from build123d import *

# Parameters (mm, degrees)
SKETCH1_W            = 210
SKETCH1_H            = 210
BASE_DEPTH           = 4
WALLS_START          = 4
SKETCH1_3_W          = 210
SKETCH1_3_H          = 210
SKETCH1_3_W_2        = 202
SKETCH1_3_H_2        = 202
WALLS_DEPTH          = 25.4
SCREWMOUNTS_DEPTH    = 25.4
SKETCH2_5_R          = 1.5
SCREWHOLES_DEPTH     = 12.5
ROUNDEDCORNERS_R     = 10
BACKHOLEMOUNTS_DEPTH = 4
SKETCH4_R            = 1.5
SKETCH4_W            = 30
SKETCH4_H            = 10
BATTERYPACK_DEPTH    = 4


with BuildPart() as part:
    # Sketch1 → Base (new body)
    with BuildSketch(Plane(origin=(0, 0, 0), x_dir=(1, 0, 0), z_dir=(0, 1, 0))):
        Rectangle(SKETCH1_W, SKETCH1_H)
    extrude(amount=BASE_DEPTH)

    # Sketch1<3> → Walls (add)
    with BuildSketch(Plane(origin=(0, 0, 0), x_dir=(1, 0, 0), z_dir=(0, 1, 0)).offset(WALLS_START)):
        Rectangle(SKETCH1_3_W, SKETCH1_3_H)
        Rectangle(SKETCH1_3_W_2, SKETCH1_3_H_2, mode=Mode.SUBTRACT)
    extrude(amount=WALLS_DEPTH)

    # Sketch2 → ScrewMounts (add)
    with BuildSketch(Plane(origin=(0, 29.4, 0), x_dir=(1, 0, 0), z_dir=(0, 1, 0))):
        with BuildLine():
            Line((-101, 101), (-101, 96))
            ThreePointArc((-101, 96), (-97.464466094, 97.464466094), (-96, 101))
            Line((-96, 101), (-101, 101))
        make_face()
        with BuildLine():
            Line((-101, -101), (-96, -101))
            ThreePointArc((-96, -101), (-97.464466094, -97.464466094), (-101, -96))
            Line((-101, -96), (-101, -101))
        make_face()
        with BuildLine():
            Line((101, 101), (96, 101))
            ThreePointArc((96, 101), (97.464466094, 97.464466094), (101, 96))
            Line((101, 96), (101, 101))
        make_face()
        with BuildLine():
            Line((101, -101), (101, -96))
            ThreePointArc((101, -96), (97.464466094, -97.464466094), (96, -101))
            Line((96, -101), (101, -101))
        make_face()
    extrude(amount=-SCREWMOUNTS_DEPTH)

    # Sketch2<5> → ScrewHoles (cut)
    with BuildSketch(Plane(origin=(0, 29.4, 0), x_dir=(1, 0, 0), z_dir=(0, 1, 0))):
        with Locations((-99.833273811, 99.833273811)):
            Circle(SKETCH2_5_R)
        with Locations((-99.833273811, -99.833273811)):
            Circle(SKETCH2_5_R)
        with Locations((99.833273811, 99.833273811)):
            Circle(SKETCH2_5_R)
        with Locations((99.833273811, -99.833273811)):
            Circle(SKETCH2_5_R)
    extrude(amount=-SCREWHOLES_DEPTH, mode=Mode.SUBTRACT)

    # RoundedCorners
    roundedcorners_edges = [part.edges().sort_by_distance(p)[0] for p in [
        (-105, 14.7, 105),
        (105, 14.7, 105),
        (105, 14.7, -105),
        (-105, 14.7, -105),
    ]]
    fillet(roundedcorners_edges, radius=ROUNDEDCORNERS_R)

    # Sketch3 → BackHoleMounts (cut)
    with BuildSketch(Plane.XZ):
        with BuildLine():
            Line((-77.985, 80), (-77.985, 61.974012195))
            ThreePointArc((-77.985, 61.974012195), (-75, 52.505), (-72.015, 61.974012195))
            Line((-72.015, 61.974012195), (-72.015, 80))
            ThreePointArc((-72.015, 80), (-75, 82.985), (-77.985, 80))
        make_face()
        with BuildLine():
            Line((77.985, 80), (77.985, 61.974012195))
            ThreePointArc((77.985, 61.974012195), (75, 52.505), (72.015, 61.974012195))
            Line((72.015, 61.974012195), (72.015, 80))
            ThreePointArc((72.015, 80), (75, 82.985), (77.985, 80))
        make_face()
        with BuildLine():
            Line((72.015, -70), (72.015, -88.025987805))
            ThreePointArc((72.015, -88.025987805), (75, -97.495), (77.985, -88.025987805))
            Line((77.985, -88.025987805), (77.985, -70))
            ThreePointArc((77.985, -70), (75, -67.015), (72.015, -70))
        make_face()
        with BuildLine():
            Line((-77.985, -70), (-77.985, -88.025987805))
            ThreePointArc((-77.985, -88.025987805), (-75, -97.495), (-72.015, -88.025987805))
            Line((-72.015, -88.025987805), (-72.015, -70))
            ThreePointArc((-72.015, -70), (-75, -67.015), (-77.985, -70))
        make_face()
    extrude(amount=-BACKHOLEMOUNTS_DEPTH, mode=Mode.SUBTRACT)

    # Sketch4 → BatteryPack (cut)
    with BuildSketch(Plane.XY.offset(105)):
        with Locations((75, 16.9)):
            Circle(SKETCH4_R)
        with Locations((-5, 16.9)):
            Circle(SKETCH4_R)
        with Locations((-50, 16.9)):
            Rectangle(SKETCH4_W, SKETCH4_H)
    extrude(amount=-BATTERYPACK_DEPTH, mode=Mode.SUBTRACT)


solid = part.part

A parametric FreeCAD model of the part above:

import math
import FreeCAD as App
import Part
import Sketcher

V = App.Vector
Q = App.Units.Quantity


def edges_at(feature, points):
    """Names of the edges that pass closest to the given points."""
    edges = feature.Shape.Edges
    near = lambda p: min(range(len(edges)), key=lambda i: edges[i].distToShape(Part.Vertex(*p))[0])
    return sorted({f"Edge{near(p) + 1}" for p in points})

doc = App.newDocument("Part")
body = doc.addObject("PartDesign::Body", "Body")

# Sketch on XZ plane
sketch1 = doc.addObject("Sketcher::SketchObject", "Sketch")
body.addObject(sketch1)
sketch1.AttachmentSupport = (doc.XZ_Plane, [""])
sketch1.MapMode = "FlatFace"
sketch1.addGeometry(Part.LineSegment(V(-105, -105, 0), V(-105, 105, 0)), False)
sketch1.addGeometry(Part.LineSegment(V(-105, 105, 0), V(105, 105, 0)), False)
sketch1.addGeometry(Part.LineSegment(V(105, 105, 0), V(105, -105, 0)), False)
sketch1.addGeometry(Part.LineSegment(V(105, -105, 0), V(-105, -105, 0)), False)
sketch1.addConstraint(Sketcher.Constraint("Coincident", 0, 2, 1, 1))
sketch1.addConstraint(Sketcher.Constraint("Coincident", 1, 2, 2, 1))
sketch1.addConstraint(Sketcher.Constraint("Coincident", 2, 2, 3, 1))
sketch1.addConstraint(Sketcher.Constraint("Coincident", 3, 2, 0, 1))
sketch1.addConstraint(Sketcher.Constraint("Vertical", 0))
sketch1.addConstraint(Sketcher.Constraint("Horizontal", 1))
sketch1.addConstraint(Sketcher.Constraint("Vertical", 2))
sketch1.addConstraint(Sketcher.Constraint("Horizontal", 3))
sketch1.addConstraint(Sketcher.Constraint("Symmetric", 0, 2, 2, 2, -1, 1))
sketch1.addConstraint(Sketcher.Constraint("Equal", 3, 0))
sketch1.addConstraint(Sketcher.Constraint("DistanceX", 1, 1, 1, 2, Q("210 mm")))
pad1 = doc.addObject("PartDesign::Pad", "Pad")
body.addObject(pad1)
pad1.Profile = sketch1
pad1.Length = 4
pad1.Reversed = True

# Sketch on XZ plane
sketch2 = doc.addObject("Sketcher::SketchObject", "Sketch001")
body.addObject(sketch2)
sketch2.AttachmentSupport = (doc.XZ_Plane, [""])
sketch2.MapMode = "FlatFace"
sketch2.AttachmentOffset = App.Placement(V(0, 0, -4), App.Rotation())
sketch2.addGeometry(Part.LineSegment(V(-105, -105, 0), V(-105, 105, 0)), False)
sketch2.addGeometry(Part.LineSegment(V(-105, 105, 0), V(105, 105, 0)), False)
sketch2.addGeometry(Part.LineSegment(V(105, 105, 0), V(105, -105, 0)), False)
sketch2.addGeometry(Part.LineSegment(V(105, -105, 0), V(-105, -105, 0)), False)
sketch2.addGeometry(Part.LineSegment(V(101, 101, 0), V(-101, 101, 0)), False)
sketch2.addGeometry(Part.LineSegment(V(-101, 101, 0), V(-101, -101, 0)), False)
sketch2.addGeometry(Part.LineSegment(V(-101, -101, 0), V(101, -101, 0)), False)
sketch2.addGeometry(Part.LineSegment(V(101, -101, 0), V(101, 101, 0)), False)
sketch2.addConstraint(Sketcher.Constraint("Coincident", 0, 2, 1, 1))
sketch2.addConstraint(Sketcher.Constraint("Coincident", 1, 2, 2, 1))
sketch2.addConstraint(Sketcher.Constraint("Coincident", 2, 2, 3, 1))
sketch2.addConstraint(Sketcher.Constraint("Coincident", 3, 2, 0, 1))
sketch2.addConstraint(Sketcher.Constraint("Coincident", 4, 2, 5, 1))
sketch2.addConstraint(Sketcher.Constraint("Coincident", 5, 2, 6, 1))
sketch2.addConstraint(Sketcher.Constraint("Coincident", 6, 2, 7, 1))
sketch2.addConstraint(Sketcher.Constraint("Coincident", 7, 2, 4, 1))
sketch2.addConstraint(Sketcher.Constraint("Vertical", 0))
sketch2.addConstraint(Sketcher.Constraint("Horizontal", 1))
sketch2.addConstraint(Sketcher.Constraint("Vertical", 2))
sketch2.addConstraint(Sketcher.Constraint("Horizontal", 3))
sketch2.addConstraint(Sketcher.Constraint("Horizontal", 4))
sketch2.addConstraint(Sketcher.Constraint("Vertical", 5))
sketch2.addConstraint(Sketcher.Constraint("Horizontal", 6))
sketch2.addConstraint(Sketcher.Constraint("Vertical", 7))
sketch2.addConstraint(Sketcher.Constraint("Symmetric", 0, 2, 2, 2, -1, 1))
sketch2.addConstraint(Sketcher.Constraint("Symmetric", 4, 2, 6, 2, -1, 1))
sketch2.addConstraint(Sketcher.Constraint("Equal", 3, 0))
sketch2.addConstraint(Sketcher.Constraint("Equal", 6, 5))
sketch2.addConstraint(Sketcher.Constraint("DistanceX", 1, 1, 1, 2, Q("210 mm")))
sketch2.addConstraint(Sketcher.Constraint("DistanceX", 4, 2, 4, 1, Q("202 mm")))
pad2 = doc.addObject("PartDesign::Pad", "Pad001")
body.addObject(pad2)
pad2.Profile = sketch2
pad2.Length = 25.4
pad2.Reversed = True

# Sketch on XZ plane
sketch3 = doc.addObject("Sketcher::SketchObject", "Sketch002")
body.addObject(sketch3)
sketch3.AttachmentSupport = (doc.XZ_Plane, [""])
sketch3.MapMode = "FlatFace"
sketch3.AttachmentOffset = App.Placement(V(0, 0, -29.4), App.Rotation())
sketch3.addGeometry(Part.LineSegment(V(-101, -101, 0), V(-101, -96, 0)), False)
sketch3.addGeometry(Part.ArcOfCircle(Part.Circle(V(-101, -101, 0), V(0, 0, 1), 5), math.radians(0), math.radians(90)), False)
sketch3.addGeometry(Part.LineSegment(V(-96, -101, 0), V(-101, -101, 0)), False)
sketch3.addGeometry(Part.LineSegment(V(-101, 101, 0), V(-96, 101, 0)), False)
sketch3.addGeometry(Part.ArcOfCircle(Part.Circle(V(-101, 101, 0), V(0, 0, 1), 5), math.radians(-90), math.radians(0)), False)
sketch3.addGeometry(Part.LineSegment(V(-101, 96, 0), V(-101, 101, 0)), False)
sketch3.addGeometry(Part.LineSegment(V(101, -101, 0), V(96, -101, 0)), False)
sketch3.addGeometry(Part.ArcOfCircle(Part.Circle(V(101, -101, 0), V(0, 0, 1), 5), math.radians(90), math.radians(180)), False)
sketch3.addGeometry(Part.LineSegment(V(101, -96, 0), V(101, -101, 0)), False)
sketch3.addGeometry(Part.LineSegment(V(101, 101, 0), V(101, 96, 0)), False)
sketch3.addGeometry(Part.ArcOfCircle(Part.Circle(V(101, 101, 0), V(0, 0, 1), 5), math.radians(180), math.radians(270)), False)
sketch3.addGeometry(Part.LineSegment(V(96, 101, 0), V(101, 101, 0)), False)
sketch3.addConstraint(Sketcher.Constraint("Coincident", 0, 2, 1, 2))
sketch3.addConstraint(Sketcher.Constraint("Coincident", 1, 1, 2, 1))
sketch3.addConstraint(Sketcher.Constraint("Coincident", 2, 2, 0, 1))
sketch3.addConstraint(Sketcher.Constraint("Coincident", 3, 2, 4, 2))
sketch3.addConstraint(Sketcher.Constraint("Coincident", 4, 1, 5, 1))
sketch3.addConstraint(Sketcher.Constraint("Coincident", 5, 2, 3, 1))
sketch3.addConstraint(Sketcher.Constraint("Coincident", 6, 2, 7, 2))
sketch3.addConstraint(Sketcher.Constraint("Coincident", 7, 1, 8, 1))
sketch3.addConstraint(Sketcher.Constraint("Coincident", 8, 2, 6, 1))
sketch3.addConstraint(Sketcher.Constraint("Coincident", 9, 2, 10, 2))
sketch3.addConstraint(Sketcher.Constraint("Coincident", 10, 1, 11, 1))
sketch3.addConstraint(Sketcher.Constraint("Coincident", 11, 2, 9, 1))
sketch3.addConstraint(Sketcher.Constraint("Vertical", 0))
sketch3.addConstraint(Sketcher.Constraint("Horizontal", 2))
sketch3.addConstraint(Sketcher.Constraint("Horizontal", 3))
sketch3.addConstraint(Sketcher.Constraint("Vertical", 5))
sketch3.addConstraint(Sketcher.Constraint("Horizontal", 6))
sketch3.addConstraint(Sketcher.Constraint("Vertical", 8))
sketch3.addConstraint(Sketcher.Constraint("Vertical", 9))
sketch3.addConstraint(Sketcher.Constraint("Horizontal", 11))
sketch3.addConstraint(Sketcher.Constraint("Coincident", 2, 2, 1, 3))
sketch3.addConstraint(Sketcher.Constraint("Coincident", 5, 2, 4, 3))
sketch3.addConstraint(Sketcher.Constraint("Coincident", 8, 2, 7, 3))
sketch3.addConstraint(Sketcher.Constraint("Coincident", 11, 2, 10, 3))
sketch3.addConstraint(Sketcher.Constraint("Equal", 1, 4))
sketch3.addConstraint(Sketcher.Constraint("Equal", 4, 7))
sketch3.addConstraint(Sketcher.Constraint("Equal", 7, 10))
sketch3.addConstraint(Sketcher.Constraint("Symmetric", 4, 3, 7, 3, -1, 1))
sketch3.addConstraint(Sketcher.Constraint("Symmetric", 1, 3, 10, 3, -1, 1))
sketch3.addConstraint(Sketcher.Constraint("Symmetric", 1, 3, 7, 3, -2))
sketch3.addConstraint(Sketcher.Constraint("Radius", 1, Q("5 mm")))
sketch3.addConstraint(Sketcher.Constraint("DistanceX", 1, 3, -1, 1, Q("101 mm")))
sketch3.addConstraint(Sketcher.Constraint("DistanceY", 1, 3, -1, 1, Q("101 mm")))
pad3 = doc.addObject("PartDesign::Pad", "Pad002")
body.addObject(pad3)
pad3.Profile = sketch3
pad3.Length = 25.4

# Sketch on XZ plane
sketch4 = doc.addObject("Sketcher::SketchObject", "Sketch003")
body.addObject(sketch4)
sketch4.AttachmentSupport = (doc.XZ_Plane, [""])
sketch4.MapMode = "FlatFace"
sketch4.AttachmentOffset = App.Placement(V(0, 0, -29.4), App.Rotation())
sketch4.addGeometry(Part.Circle(V(-99.8, -99.8, 0), V(0, 0, 1), 1.5), False)
sketch4.addGeometry(Part.Circle(V(-99.8, 99.8, 0), V(0, 0, 1), 1.5), False)
sketch4.addGeometry(Part.Circle(V(99.8, -99.8, 0), V(0, 0, 1), 1.5), False)
sketch4.addGeometry(Part.Circle(V(99.8, 99.8, 0), V(0, 0, 1), 1.5), False)
sketch4.addConstraint(Sketcher.Constraint("Equal", 0, 1))
sketch4.addConstraint(Sketcher.Constraint("Equal", 1, 2))
sketch4.addConstraint(Sketcher.Constraint("Equal", 2, 3))
sketch4.addConstraint(Sketcher.Constraint("Symmetric", 1, 3, 2, 3, -1, 1))
sketch4.addConstraint(Sketcher.Constraint("Symmetric", 0, 3, 3, 3, -1, 1))
sketch4.addConstraint(Sketcher.Constraint("Symmetric", 0, 3, 2, 3, -2))
sketch4.addConstraint(Sketcher.Constraint("Diameter", 0, Q("3 mm")))
sketch4.addConstraint(Sketcher.Constraint("DistanceX", 0, 3, -1, 1, Q("99.833274 mm")))
sketch4.addConstraint(Sketcher.Constraint("DistanceY", 0, 3, -1, 1, Q("99.833274 mm")))
pocket1 = doc.addObject("PartDesign::Pocket", "Pocket")
body.addObject(pocket1)
pocket1.Profile = sketch4
pocket1.Length = 12.5
pocket1.Reversed = True
doc.recompute()

fillet = doc.addObject("PartDesign::Fillet", "Fillet")
body.addObject(fillet)
fillet.Base = (pocket1, edges_at(pocket1, [
    (-105, 14.7, 105),
    (105, 14.7, 105),
    (105, 14.7, -105),
    (-105, 14.7, -105),
]))
fillet.Radius = 10

# Sketch on XZ plane
sketch5 = doc.addObject("Sketcher::SketchObject", "Sketch004")
body.addObject(sketch5)
sketch5.AttachmentSupport = (doc.XZ_Plane, [""])
sketch5.MapMode = "FlatFace"
sketch5.addGeometry(Part.LineSegment(V(-78, 80, 0), V(-78, 62, 0)), False)
sketch5.addGeometry(Part.ArcOfCircle(Part.Circle(V(-75, 57.7, 0), V(0, 0, 1), 5.2), math.radians(125), math.radians(415)), False)
sketch5.addGeometry(Part.LineSegment(V(-72, 62, 0), V(-72, 80, 0)), False)
sketch5.addGeometry(Part.ArcOfCircle(Part.Circle(V(-75, 80, 0), V(0, 0, 1), 3), math.radians(0), math.radians(180)), False)
sketch5.addGeometry(Part.LineSegment(V(78, 62, 0), V(78, 80, 0)), False)
sketch5.addGeometry(Part.ArcOfCircle(Part.Circle(V(75, 80, 0), V(0, 0, 1), 3), math.radians(0), math.radians(180)), False)
sketch5.addGeometry(Part.LineSegment(V(72, 80, 0), V(72, 62, 0)), False)
sketch5.addGeometry(Part.ArcOfCircle(Part.Circle(V(75, 57.7, 0), V(0, 0, 1), 5.2), math.radians(125), math.radians(415)), False)
sketch5.addGeometry(Part.LineSegment(V(72, -70, 0), V(72, -88, 0)), False)
sketch5.addGeometry(Part.ArcOfCircle(Part.Circle(V(75, -92.3, 0), V(0, 0, 1), 5.2), math.radians(125), math.radians(415)), False)
sketch5.addGeometry(Part.LineSegment(V(78, -88, 0), V(78, -70, 0)), False)
sketch5.addGeometry(Part.ArcOfCircle(Part.Circle(V(75, -70, 0), V(0, 0, 1), 3), math.radians(0), math.radians(180)), False)
sketch5.addGeometry(Part.LineSegment(V(-78, -70, 0), V(-78, -88, 0)), False)
sketch5.addGeometry(Part.ArcOfCircle(Part.Circle(V(-75, -92.3, 0), V(0, 0, 1), 5.2), math.radians(125), math.radians(415)), False)
sketch5.addGeometry(Part.LineSegment(V(-72, -88, 0), V(-72, -70, 0)), False)
sketch5.addGeometry(Part.ArcOfCircle(Part.Circle(V(-75, -70, 0), V(0, 0, 1), 3), math.radians(0), math.radians(180)), False)
sketch5.addConstraint(Sketcher.Constraint("Coincident", 0, 2, 1, 1))
sketch5.addConstraint(Sketcher.Constraint("Coincident", 1, 2, 2, 1))
sketch5.addConstraint(Sketcher.Constraint("Tangent", 2, 2, 3, 1))
sketch5.addConstraint(Sketcher.Constraint("Tangent", 3, 2, 0, 1))
sketch5.addConstraint(Sketcher.Constraint("Tangent", 4, 2, 5, 1))
sketch5.addConstraint(Sketcher.Constraint("Tangent", 5, 2, 6, 1))
sketch5.addConstraint(Sketcher.Constraint("Coincident", 6, 2, 7, 1))
sketch5.addConstraint(Sketcher.Constraint("Coincident", 7, 2, 4, 1))
sketch5.addConstraint(Sketcher.Constraint("Coincident", 8, 2, 9, 1))
sketch5.addConstraint(Sketcher.Constraint("Coincident", 9, 2, 10, 1))
sketch5.addConstraint(Sketcher.Constraint("Tangent", 10, 2, 11, 1))
sketch5.addConstraint(Sketcher.Constraint("Tangent", 11, 2, 8, 1))
sketch5.addConstraint(Sketcher.Constraint("Coincident", 12, 2, 13, 1))
sketch5.addConstraint(Sketcher.Constraint("Coincident", 13, 2, 14, 1))
sketch5.addConstraint(Sketcher.Constraint("Tangent", 14, 2, 15, 1))
sketch5.addConstraint(Sketcher.Constraint("Tangent", 15, 2, 12, 1))
sketch5.addConstraint(Sketcher.Constraint("Vertical", 0))
sketch5.addConstraint(Sketcher.Constraint("Vertical", 2))
sketch5.addConstraint(Sketcher.Constraint("Vertical", 4))
sketch5.addConstraint(Sketcher.Constraint("Vertical", 6))
sketch5.addConstraint(Sketcher.Constraint("Vertical", 8))
sketch5.addConstraint(Sketcher.Constraint("Vertical", 10))
sketch5.addConstraint(Sketcher.Constraint("Vertical", 12))
sketch5.addConstraint(Sketcher.Constraint("Vertical", 14))
sketch5.addConstraint(Sketcher.Constraint("Equal", 3, 5))
sketch5.addConstraint(Sketcher.Constraint("Equal", 1, 7))
sketch5.addConstraint(Sketcher.Constraint("Equal", 7, 9))
sketch5.addConstraint(Sketcher.Constraint("Equal", 5, 11))
sketch5.addConstraint(Sketcher.Constraint("Equal", 9, 13))
sketch5.addConstraint(Sketcher.Constraint("Equal", 11, 15))
sketch5.addConstraint(Sketcher.Constraint("Symmetric", 3, 3, 5, 3, -2))
sketch5.addConstraint(Sketcher.Constraint("Symmetric", 1, 3, 7, 3, -2))
sketch5.addConstraint(Sketcher.Constraint("Symmetric", 9, 3, 13, 3, -2))
sketch5.addConstraint(Sketcher.Constraint("Symmetric", 11, 3, 15, 3, -2))
sketch5.addConstraint(Sketcher.Constraint("Horizontal", 0, 2, 1, 2))
sketch5.addConstraint(Sketcher.Constraint("Horizontal", 8, 2, 9, 2))
sketch5.addConstraint(Sketcher.Constraint("Vertical", 7, 3, 9, 3))
sketch5.addConstraint(Sketcher.Constraint("Equal", 6, 8))
sketch5.addConstraint(Sketcher.Constraint("DistanceX", 1, 3, -1, 1, Q("75 mm")))
sketch5.addConstraint(Sketcher.Constraint("DistanceY", -1, 1, 3, 3, Q("80 mm")))
sketch5.addConstraint(Sketcher.Constraint("DistanceY", 11, 3, -1, 1, Q("70 mm")))
sketch5.addConstraint(Sketcher.Constraint("Radius", 1, Q("5.205 mm")))
sketch5.addConstraint(Sketcher.Constraint("Radius", 3, Q("2.985 mm")))
sketch5.addConstraint(Sketcher.Constraint("DistanceY", -1, 1, 1, 3, Q("57.71 mm")))
pocket2 = doc.addObject("PartDesign::Pocket", "Pocket001")
body.addObject(pocket2)
pocket2.Profile = sketch5
pocket2.Length = 4

# Sketch on XY plane
sketch6 = doc.addObject("Sketcher::SketchObject", "Sketch005")
body.addObject(sketch6)
sketch6.AttachmentSupport = (doc.XY_Plane, [""])
sketch6.MapMode = "FlatFace"
sketch6.AttachmentOffset = App.Placement(V(0, 0, 105), App.Rotation())
sketch6.addGeometry(Part.Circle(V(75, 16.9, 0), V(0, 0, 1), 1.5), False)
sketch6.addGeometry(Part.Circle(V(-5, 16.9, 0), V(0, 0, 1), 1.5), False)
sketch6.addGeometry(Part.LineSegment(V(-65, 21.9, 0), V(-65, 11.9, 0)), False)
sketch6.addGeometry(Part.LineSegment(V(-65, 11.9, 0), V(-35, 11.9, 0)), False)
sketch6.addGeometry(Part.LineSegment(V(-35, 11.9, 0), V(-35, 21.9, 0)), False)
sketch6.addGeometry(Part.LineSegment(V(-35, 21.9, 0), V(-65, 21.9, 0)), False)
sketch6.addConstraint(Sketcher.Constraint("Coincident", 2, 2, 3, 1))
sketch6.addConstraint(Sketcher.Constraint("Coincident", 3, 2, 4, 1))
sketch6.addConstraint(Sketcher.Constraint("Coincident", 4, 2, 5, 1))
sketch6.addConstraint(Sketcher.Constraint("Coincident", 5, 2, 2, 1))
sketch6.addConstraint(Sketcher.Constraint("Vertical", 2))
sketch6.addConstraint(Sketcher.Constraint("Horizontal", 3))
sketch6.addConstraint(Sketcher.Constraint("Vertical", 4))
sketch6.addConstraint(Sketcher.Constraint("Horizontal", 5))
sketch6.addConstraint(Sketcher.Constraint("Equal", 0, 1))
sketch6.addConstraint(Sketcher.Constraint("Horizontal", 0, 3, 1, 3))
sketch6.addConstraint(Sketcher.Constraint("Diameter", 0, Q("3 mm")))
sketch6.addConstraint(Sketcher.Constraint("DistanceX", 3, 1, 3, 2, Q("30 mm")))
sketch6.addConstraint(Sketcher.Constraint("DistanceY", 2, 2, 2, 1, Q("10 mm")))
sketch6.addConstraint(Sketcher.Constraint("DistanceX", -1, 1, 0, 3, Q("75 mm")))
sketch6.addConstraint(Sketcher.Constraint("DistanceX", 1, 3, -1, 1, Q("5 mm")))
sketch6.addConstraint(Sketcher.Constraint("DistanceX", 2, 2, -1, 1, Q("65 mm")))
sketch6.addConstraint(Sketcher.Constraint("DistanceY", 2, 2, 1, 3, Q("5 mm")))
sketch6.addConstraint(Sketcher.Constraint("DistanceY", -1, 1, 0, 3, Q("16.9 mm")))
pocket3 = doc.addObject("PartDesign::Pocket", "Pocket002")
body.addObject(pocket3)
pocket3.Profile = sketch6
pocket3.Length = 4

doc.recompute()
